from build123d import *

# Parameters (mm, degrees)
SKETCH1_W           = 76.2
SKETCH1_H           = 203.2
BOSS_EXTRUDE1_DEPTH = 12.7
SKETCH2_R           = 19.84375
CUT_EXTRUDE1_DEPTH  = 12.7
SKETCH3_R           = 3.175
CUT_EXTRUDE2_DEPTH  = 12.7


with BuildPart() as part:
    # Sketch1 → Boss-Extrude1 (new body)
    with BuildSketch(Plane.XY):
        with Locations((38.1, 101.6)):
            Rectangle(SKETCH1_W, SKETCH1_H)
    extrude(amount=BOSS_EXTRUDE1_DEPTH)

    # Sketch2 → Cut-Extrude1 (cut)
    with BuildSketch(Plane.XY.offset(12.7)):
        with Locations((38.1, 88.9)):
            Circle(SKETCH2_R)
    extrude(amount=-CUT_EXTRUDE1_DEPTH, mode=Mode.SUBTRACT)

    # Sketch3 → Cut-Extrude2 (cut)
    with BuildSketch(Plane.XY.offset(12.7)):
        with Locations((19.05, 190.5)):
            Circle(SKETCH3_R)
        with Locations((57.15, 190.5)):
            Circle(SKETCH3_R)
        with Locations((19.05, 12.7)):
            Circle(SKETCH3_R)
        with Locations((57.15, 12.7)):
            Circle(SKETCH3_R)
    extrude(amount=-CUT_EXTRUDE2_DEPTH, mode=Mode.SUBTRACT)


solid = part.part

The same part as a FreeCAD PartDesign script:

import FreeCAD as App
import Part
import Sketcher

V = App.Vector
Q = App.Units.Quantity

doc = App.newDocument("Part")
params = doc.addObject("Spreadsheet::Sheet", "Params")
for row, (alias, value) in enumerate([
    ("sketch1_width", "3 in"),
    ("sketch1_height", "8 in"),
    ("pad1_length", "0.5 in"),
    ("sketch2_diameter", "1.5625 in"),
    ("pocket1_length", "0.5 in"),
    ("sketch3_diameter", "0.25 in"),
    ("pocket2_length", "0.5 in"),
], start=1):
    params.set(f"A{row}", alias)
    params.set(f"B{row}", "=" + value)
    params.setAlias(f"B{row}", alias)

body = doc.addObject("PartDesign::Body", "Body")

sketch1 = body.newObject("Sketcher::SketchObject", "Sketch")
sketch1.AttachmentSupport = (doc.getObject("XY_Plane"), [""])
sketch1.MapMode = "FlatFace"
sketch1.addGeometry(Part.LineSegment(V(0, 203, 0), V(0, 0, 0)), False)
sketch1.addGeometry(Part.LineSegment(V(0, 0, 0), V(76, 0, 0)), False)
sketch1.addGeometry(Part.LineSegment(V(76, 0, 0), V(76, 203, 0)), False)
sketch1.addGeometry(Part.LineSegment(V(76, 203, 0), V(0, 203, 0)), False)
sketch1.addConstraint(Sketcher.Constraint("Coincident", 0, 2, 1, 1))
sketch1.addConstraint(Sketcher.Constraint("Coincident", 1, 2, 2, 1))
sketch1.addConstraint(Sketcher.Constraint("Coincident", 2, 2, 3, 1))
sketch1.addConstraint(Sketcher.Constraint("Coincident", 3, 2, 0, 1))
sketch1.addConstraint(Sketcher.Constraint("Vertical", 0))
sketch1.addConstraint(Sketcher.Constraint("Horizontal", 1))
sketch1.addConstraint(Sketcher.Constraint("Vertical", 2))
sketch1.addConstraint(Sketcher.Constraint("Horizontal", 3))
sketch1.addConstraint(Sketcher.Constraint("Coincident", 0, 2, -1, 1))
sketch1.addConstraint(Sketcher.Constraint("DistanceX", 1, 1, 1, 2, Q("3 in")))
sketch1.addConstraint(Sketcher.Constraint("DistanceY", 0, 2, 0, 1, Q("8 in")))
sketch1.setExpression("Constraints[9]", "Params.sketch1_width")
sketch1.setExpression("Constraints[10]", "Params.sketch1_height")
pad1 = body.newObject("PartDesign::Pad", "Pad")
pad1.Profile = sketch1
pad1.setExpression("Length", "Params.pad1_length")

sketch2 = body.newObject("Sketcher::SketchObject", "Sketch001")
sketch2.AttachmentSupport = (doc.getObject("XY_Plane"), [""])
sketch2.MapMode = "FlatFace"
sketch2.AttachmentOffset = App.Placement(V(0, 0, 0.5 * 25.4), App.Rotation())
sketch2.addGeometry(Part.Circle(V(38, 89, 0), V(0, 0, 1), 20), False)
sketch2.addConstraint(Sketcher.Constraint("Diameter", 0, Q("1.5625 in")))
sketch2.addConstraint(Sketcher.Constraint("DistanceX", -1, 1, 0, 3, Q("1.5 in")))
sketch2.addConstraint(Sketcher.Constraint("DistanceY", -1, 1, 0, 3, Q("3.5 in")))
sketch2.setExpression("Constraints[0]", "Params.sketch2_diameter")
pocket1 = body.newObject("PartDesign::Pocket", "Pocket")
pocket1.Profile = sketch2
pocket1.setExpression("Length", "Params.pocket1_length")

sketch3 = body.newObject("Sketcher::SketchObject", "Sketch002")
sketch3.AttachmentSupport = (doc.getObject("XY_Plane"), [""])
sketch3.MapMode = "FlatFace"
sketch3.AttachmentOffset = App.Placement(V(0, 0, 0.5 * 25.4), App.Rotation())
sketch3.addGeometry(Part.Circle(V(19.1, 190.5, 0), V(0, 0, 1), 3.2), False)
sketch3.addGeometry(Part.Circle(V(57.1, 190.5, 0), V(0, 0, 1), 3.2), False)
sketch3.addGeometry(Part.Circle(V(19.1, 12.7, 0), V(0, 0, 1), 3.2), False)
sketch3.addGeometry(Part.Circle(V(57.1, 12.7, 0), V(0, 0, 1), 3.2), False)
sketch3.addConstraint(Sketcher.Constraint("Equal", 0, 1))
sketch3.addConstraint(Sketcher.Constraint("Equal", 1, 2))
sketch3.addConstraint(Sketcher.Constraint("Equal", 2, 3))
sketch3.addConstraint(Sketcher.Constraint("Horizontal", 0, 3, 1, 3))
sketch3.addConstraint(Sketcher.Constraint("Horizontal", 2, 3, 3, 3))
sketch3.addConstraint(Sketcher.Constraint("Vertical", 0, 3, 2, 3))
sketch3.addConstraint(Sketcher.Constraint("Vertical", 1, 3, 3, 3))
sketch3.addConstraint(Sketcher.Constraint("Diameter", 0, Q("0.25 in")))
sketch3.addConstraint(Sketcher.Constraint("DistanceY", 2, 3, 0, 3, Q("7 in")))
sketch3.addConstraint(Sketcher.Constraint("DistanceY", -1, 1, 0, 3, Q("7.5 in")))
sketch3.addConstraint(Sketcher.Constraint("DistanceX", 0, 3, 1, 3, Q("1.5 in")))
sketch3.addConstraint(Sketcher.Constraint("DistanceX", -1, 1, 0, 3, Q("0.75 in")))
sketch3.setExpression("Constraints[7]", "Params.sketch3_diameter")
pocket2 = body.newObject("PartDesign::Pocket", "Pocket001")
pocket2.Profile = sketch3
pocket2.setExpression("Length", "Params.pocket2_length")

doc.recompute()
